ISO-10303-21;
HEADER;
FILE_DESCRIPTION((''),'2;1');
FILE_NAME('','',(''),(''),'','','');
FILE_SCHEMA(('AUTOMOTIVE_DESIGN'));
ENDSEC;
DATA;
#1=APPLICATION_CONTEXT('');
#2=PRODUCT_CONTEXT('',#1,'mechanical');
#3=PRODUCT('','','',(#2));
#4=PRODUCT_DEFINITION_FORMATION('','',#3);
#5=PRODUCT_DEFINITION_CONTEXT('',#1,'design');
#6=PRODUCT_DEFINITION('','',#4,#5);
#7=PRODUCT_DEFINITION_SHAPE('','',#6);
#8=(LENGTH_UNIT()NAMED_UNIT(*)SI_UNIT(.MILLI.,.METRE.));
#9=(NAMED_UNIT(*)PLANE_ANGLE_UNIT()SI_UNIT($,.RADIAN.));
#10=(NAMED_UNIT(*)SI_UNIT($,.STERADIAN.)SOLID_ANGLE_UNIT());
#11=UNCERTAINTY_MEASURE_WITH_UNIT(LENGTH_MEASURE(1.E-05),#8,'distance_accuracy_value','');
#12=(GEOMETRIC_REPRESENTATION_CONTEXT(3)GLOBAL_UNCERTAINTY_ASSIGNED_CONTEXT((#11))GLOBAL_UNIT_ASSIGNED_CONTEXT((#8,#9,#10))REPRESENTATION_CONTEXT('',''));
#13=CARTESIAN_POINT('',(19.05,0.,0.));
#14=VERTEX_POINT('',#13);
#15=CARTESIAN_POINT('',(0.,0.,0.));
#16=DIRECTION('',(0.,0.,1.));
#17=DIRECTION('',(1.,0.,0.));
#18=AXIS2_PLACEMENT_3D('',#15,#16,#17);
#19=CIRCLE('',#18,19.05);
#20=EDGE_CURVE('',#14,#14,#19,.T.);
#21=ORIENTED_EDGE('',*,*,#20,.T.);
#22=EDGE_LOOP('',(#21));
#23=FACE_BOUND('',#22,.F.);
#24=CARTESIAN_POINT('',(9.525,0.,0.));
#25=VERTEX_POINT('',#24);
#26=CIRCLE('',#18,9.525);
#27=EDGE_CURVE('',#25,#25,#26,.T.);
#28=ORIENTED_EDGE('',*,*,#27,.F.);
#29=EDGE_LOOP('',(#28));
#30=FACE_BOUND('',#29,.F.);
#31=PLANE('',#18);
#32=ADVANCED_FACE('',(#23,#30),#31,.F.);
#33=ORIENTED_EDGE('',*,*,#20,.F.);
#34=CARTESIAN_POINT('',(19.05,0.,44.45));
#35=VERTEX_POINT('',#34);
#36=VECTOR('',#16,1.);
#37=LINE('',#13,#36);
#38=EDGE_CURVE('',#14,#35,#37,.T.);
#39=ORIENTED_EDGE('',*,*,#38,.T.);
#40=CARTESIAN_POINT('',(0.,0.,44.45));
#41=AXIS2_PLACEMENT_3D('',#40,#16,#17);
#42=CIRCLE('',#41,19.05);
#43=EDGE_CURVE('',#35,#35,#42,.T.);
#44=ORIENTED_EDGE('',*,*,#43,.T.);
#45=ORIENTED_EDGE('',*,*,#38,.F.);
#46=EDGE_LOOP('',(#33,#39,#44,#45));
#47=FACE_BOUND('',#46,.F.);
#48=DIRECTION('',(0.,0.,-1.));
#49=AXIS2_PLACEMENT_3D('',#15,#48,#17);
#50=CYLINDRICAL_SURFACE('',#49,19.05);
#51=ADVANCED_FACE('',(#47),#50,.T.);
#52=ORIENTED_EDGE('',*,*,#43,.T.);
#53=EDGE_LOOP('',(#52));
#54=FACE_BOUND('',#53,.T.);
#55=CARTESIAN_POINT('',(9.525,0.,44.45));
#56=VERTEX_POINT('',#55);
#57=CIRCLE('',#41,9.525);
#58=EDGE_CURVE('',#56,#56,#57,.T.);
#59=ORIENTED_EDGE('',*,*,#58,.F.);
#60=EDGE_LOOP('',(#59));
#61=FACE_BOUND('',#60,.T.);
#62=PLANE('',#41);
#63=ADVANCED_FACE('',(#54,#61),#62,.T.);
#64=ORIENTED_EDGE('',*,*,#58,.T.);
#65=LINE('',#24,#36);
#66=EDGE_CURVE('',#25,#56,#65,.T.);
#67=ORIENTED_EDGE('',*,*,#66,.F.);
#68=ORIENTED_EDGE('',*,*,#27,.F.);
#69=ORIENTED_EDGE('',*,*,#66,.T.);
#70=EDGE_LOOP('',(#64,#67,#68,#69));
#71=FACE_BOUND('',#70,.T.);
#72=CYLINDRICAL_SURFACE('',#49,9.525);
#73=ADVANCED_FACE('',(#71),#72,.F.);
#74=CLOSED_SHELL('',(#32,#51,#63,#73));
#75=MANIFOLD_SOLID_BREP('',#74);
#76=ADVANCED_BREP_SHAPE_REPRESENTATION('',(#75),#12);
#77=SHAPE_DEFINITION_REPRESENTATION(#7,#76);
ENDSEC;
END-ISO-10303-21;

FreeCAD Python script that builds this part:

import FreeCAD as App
import Part
import Sketcher

V = App.Vector
Q = App.Units.Quantity

doc = App.newDocument("Part")
body = doc.addObject("PartDesign::Body", "Body")

# Sketch on XY plane
sketch1 = body.newObject("Sketcher::SketchObject", "Sketch")
sketch1.AttachmentSupport = (doc.getObject("XY_Plane"), [""])
sketch1.MapMode = "FlatFace"
sketch1.addGeometry(Part.Circle(V(0, 0, 0), V(0, 0, 1), 19), False)
sketch1.addGeometry(Part.Circle(V(0, 0, 0), V(0, 0, 1), 10), False)
sketch1.addConstraint(Sketcher.Constraint("Coincident", 0, 3, -1, 1))
sketch1.addConstraint(Sketcher.Constraint("Coincident", 1, 3, -1, 1))
sketch1.addConstraint(Sketcher.Constraint("Diameter", 0, Q("1.5 in")))
sketch1.addConstraint(Sketcher.Constraint("Diameter", 1, Q("0.75 in")))
pad1 = body.newObject("PartDesign::Pad", "Pad")
pad1.Profile = sketch1
pad1.Length = Q("1.75 in")

doc.recompute()
